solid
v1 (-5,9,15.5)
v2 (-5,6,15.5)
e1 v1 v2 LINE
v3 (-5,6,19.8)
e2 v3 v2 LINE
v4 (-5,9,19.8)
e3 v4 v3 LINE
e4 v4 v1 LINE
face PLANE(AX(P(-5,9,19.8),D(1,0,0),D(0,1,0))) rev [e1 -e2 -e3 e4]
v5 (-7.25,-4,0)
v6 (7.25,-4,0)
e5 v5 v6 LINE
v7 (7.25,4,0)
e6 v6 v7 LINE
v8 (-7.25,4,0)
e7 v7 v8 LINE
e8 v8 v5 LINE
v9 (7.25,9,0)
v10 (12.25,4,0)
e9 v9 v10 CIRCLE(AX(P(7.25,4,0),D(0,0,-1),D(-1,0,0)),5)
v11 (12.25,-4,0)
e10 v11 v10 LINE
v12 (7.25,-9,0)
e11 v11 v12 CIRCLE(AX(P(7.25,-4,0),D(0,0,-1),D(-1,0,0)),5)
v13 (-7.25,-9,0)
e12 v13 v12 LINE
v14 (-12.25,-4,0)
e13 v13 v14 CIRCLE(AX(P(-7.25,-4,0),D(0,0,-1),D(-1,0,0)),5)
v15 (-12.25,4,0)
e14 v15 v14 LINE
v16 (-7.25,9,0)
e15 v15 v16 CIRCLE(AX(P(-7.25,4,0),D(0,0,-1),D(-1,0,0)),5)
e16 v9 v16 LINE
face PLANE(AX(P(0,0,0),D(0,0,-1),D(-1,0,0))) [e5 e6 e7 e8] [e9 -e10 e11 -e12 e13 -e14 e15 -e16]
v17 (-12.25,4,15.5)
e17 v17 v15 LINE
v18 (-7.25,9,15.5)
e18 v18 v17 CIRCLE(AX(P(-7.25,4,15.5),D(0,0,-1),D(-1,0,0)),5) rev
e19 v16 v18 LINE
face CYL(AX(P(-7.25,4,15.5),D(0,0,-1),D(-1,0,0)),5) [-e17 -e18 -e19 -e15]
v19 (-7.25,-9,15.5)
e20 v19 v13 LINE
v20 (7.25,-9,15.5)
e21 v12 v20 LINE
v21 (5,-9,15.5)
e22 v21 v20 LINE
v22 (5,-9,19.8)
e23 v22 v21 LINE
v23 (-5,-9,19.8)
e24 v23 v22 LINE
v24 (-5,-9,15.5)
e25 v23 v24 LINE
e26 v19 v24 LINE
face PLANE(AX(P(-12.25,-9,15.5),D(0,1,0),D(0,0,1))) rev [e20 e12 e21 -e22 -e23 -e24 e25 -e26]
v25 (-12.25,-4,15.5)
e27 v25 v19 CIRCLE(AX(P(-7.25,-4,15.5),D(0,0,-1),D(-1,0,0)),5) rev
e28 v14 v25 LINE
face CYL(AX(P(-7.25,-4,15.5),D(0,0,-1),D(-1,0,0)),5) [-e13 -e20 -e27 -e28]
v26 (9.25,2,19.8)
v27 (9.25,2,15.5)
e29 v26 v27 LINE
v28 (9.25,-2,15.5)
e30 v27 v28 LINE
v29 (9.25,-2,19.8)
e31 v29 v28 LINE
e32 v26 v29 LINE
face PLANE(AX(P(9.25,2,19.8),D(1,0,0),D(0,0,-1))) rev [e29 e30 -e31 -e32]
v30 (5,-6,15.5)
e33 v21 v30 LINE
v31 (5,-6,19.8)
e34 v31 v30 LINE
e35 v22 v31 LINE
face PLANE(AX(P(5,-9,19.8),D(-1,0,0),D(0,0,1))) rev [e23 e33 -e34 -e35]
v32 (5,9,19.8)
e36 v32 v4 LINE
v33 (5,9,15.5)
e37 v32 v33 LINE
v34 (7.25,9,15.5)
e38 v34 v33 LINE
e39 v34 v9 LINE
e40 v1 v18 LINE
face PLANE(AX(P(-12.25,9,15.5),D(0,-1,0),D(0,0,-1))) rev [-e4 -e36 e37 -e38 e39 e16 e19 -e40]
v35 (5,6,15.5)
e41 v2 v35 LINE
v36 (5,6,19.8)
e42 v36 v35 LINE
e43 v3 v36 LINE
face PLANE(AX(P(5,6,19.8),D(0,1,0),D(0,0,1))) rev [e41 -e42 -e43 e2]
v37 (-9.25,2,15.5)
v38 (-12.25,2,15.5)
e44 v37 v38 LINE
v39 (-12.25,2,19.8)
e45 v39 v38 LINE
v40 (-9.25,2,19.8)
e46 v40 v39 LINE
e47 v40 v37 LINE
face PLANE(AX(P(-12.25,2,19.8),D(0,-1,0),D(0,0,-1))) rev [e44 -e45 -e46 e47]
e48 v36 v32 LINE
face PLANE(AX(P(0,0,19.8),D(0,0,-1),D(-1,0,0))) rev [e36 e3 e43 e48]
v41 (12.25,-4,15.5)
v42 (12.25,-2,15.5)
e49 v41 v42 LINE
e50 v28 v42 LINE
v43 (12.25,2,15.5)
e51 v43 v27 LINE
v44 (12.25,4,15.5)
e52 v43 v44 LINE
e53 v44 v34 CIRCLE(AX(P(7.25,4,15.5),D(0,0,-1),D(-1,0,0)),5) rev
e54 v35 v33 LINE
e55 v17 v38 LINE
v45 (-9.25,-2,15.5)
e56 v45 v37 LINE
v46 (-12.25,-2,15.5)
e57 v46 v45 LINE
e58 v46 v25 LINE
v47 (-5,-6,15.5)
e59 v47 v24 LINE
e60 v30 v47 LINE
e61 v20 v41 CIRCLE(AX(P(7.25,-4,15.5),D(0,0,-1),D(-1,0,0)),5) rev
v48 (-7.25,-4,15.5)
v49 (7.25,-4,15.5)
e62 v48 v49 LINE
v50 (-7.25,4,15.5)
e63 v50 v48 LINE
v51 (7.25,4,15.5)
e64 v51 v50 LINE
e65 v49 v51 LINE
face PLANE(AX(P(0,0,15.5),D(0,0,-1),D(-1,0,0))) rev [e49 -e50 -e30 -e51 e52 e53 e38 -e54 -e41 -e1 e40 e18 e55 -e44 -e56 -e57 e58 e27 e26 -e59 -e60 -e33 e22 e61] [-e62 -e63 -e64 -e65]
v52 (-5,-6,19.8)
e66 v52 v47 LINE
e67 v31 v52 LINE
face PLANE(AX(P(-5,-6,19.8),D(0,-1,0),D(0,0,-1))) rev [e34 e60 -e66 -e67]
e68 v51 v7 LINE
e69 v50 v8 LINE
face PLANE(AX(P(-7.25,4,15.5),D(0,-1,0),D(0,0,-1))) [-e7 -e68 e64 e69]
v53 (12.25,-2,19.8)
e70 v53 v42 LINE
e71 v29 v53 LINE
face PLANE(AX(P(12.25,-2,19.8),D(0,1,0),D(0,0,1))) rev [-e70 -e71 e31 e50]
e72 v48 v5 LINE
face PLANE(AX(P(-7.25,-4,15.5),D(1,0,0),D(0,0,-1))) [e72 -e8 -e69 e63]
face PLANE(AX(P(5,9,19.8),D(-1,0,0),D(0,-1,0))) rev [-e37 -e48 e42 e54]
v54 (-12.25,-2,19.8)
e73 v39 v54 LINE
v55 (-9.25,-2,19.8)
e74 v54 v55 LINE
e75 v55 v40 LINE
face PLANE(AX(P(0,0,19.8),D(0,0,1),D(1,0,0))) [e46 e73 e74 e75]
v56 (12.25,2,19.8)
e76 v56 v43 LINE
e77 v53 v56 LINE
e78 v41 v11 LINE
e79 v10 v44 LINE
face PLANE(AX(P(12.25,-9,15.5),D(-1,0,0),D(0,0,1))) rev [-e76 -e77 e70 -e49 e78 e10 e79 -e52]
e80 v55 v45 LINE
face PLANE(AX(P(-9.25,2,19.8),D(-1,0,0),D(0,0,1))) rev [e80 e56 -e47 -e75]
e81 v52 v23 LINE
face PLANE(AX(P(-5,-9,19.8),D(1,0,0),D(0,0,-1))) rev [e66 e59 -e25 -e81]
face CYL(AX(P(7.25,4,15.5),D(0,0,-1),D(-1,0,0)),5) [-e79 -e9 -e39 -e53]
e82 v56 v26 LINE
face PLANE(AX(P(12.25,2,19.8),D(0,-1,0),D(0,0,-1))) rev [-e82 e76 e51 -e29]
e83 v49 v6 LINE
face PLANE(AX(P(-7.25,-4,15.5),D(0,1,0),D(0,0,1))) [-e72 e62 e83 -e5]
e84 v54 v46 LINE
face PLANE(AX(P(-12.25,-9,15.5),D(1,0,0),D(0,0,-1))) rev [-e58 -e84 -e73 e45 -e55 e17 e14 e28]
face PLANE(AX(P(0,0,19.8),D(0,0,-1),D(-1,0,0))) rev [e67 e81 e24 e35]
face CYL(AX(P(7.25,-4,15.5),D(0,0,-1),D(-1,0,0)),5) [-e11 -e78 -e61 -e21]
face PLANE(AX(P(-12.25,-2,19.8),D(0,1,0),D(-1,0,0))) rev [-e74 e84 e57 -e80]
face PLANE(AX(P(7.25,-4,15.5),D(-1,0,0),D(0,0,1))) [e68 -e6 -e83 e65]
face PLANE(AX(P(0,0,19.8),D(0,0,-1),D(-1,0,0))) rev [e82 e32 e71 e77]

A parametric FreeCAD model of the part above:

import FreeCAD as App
import Part
import Sketcher

V = App.Vector


def edges_at(feature, points):
    """Names of the edges that pass closest to the given points."""
    edges = feature.Shape.Edges
    near = lambda p: min(range(len(edges)), key=lambda i: edges[i].distToShape(Part.Vertex(*p))[0])
    return sorted({f"Edge{near(p) + 1}" for p in points})


def add_polygon(sketch, points):
    """Adds a closed chain of lines whose ends are joined by coincident constraints."""
    first, n = sketch.GeometryCount, len(points)
    for a, b in zip(points, points[1:] + points[:1]):
        sketch.addGeometry(Part.LineSegment(App.Vector(*a, 0), App.Vector(*b, 0)), False)
    for i in range(n):
        sketch.addConstraint(Sketcher.Constraint("Coincident", first + i, 2, first + (i + 1) % n, 1))

doc = App.newDocument("Part")
body = doc.addObject("PartDesign::Body", "Body")

# Sketch on XY plane
sketch1 = doc.addObject("Sketcher::SketchObject", "Sketch")
body.addObject(sketch1)
sketch1.AttachmentSupport = (doc.XY_Plane, [""])
sketch1.MapMode = "FlatFace"
add_polygon(sketch1, [(-12, 9), (-12, -9), (12, -9), (12, 9)])  # lines 0-3
add_polygon(sketch1, [(7, -4), (-7, -4), (-7, 4), (7, 4)])  # lines 4-7
sketch1.addConstraint(Sketcher.Constraint("Vertical", 0))
sketch1.addConstraint(Sketcher.Constraint("Horizontal", 1))
sketch1.addConstraint(Sketcher.Constraint("Vertical", 2))
sketch1.addConstraint(Sketcher.Constraint("Horizontal", 3))
sketch1.addConstraint(Sketcher.Constraint("Horizontal", 4))
sketch1.addConstraint(Sketcher.Constraint("Vertical", 5))
sketch1.addConstraint(Sketcher.Constraint("Horizontal", 6))
sketch1.addConstraint(Sketcher.Constraint("Vertical", 7))
sketch1.addConstraint(Sketcher.Constraint("Symmetric", 0, 2, 2, 2, -1, 1))
sketch1.addConstraint(Sketcher.Constraint("Symmetric", 4, 2, 6, 2, -1, 1))
sketch1.addConstraint(Sketcher.Constraint("DistanceY", 0, 2, 0, 1, 18.0))
sketch1.addConstraint(Sketcher.Constraint("DistanceY", 5, 1, 5, 2, 8.0))
sketch1.addConstraint(Sketcher.Constraint("DistanceX", 1, 1, 1, 2, 24.5))
sketch1.addConstraint(Sketcher.Constraint("DistanceX", 4, 2, 4, 1, 14.5))
pad1 = doc.addObject("PartDesign::Pad", "Pad")
body.addObject(pad1)
pad1.Profile = sketch1
pad1.Length = 15.5
doc.recompute()

fillet = doc.addObject("PartDesign::Fillet", "Fillet")
body.addObject(fillet)
fillet.Base = (pad1, edges_at(pad1, [
    (-12.25, 9, 7.75),
    (12.25, 9, 7.75),
    (12.25, -9, 7.75),
    (-12.25, -9, 7.75),
]))
fillet.Radius = 5

# Sketch on XY plane
sketch2 = doc.addObject("Sketcher::SketchObject", "Sketch001")
body.addObject(sketch2)
sketch2.AttachmentSupport = (doc.XY_Plane, [""])
sketch2.MapMode = "FlatFace"
sketch2.AttachmentOffset = App.Placement(V(0, 0, 15.5), App.Rotation())
add_polygon(sketch2, [(-5, -6), (-5, -9), (5, -9), (5, -6)])  # lines 0-3
add_polygon(sketch2, [(-5, 9), (-5, 6), (5, 6), (5, 9)])  # lines 4-7
add_polygon(sketch2, [(-12.2, 2), (-12.2, -2), (-9.2, -2), (-9.2, 2)])  # lines 8-11
add_polygon(sketch2, [(9.2, 2), (9.2, -2), (12.2, -2), (12.2, 2)])  # lines 12-15
sketch2.addConstraint(Sketcher.Constraint("Vertical", 0))
sketch2.addConstraint(Sketcher.Constraint("Horizontal", 1))
sketch2.addConstraint(Sketcher.Constraint("Vertical", 2))
sketch2.addConstraint(Sketcher.Constraint("Horizontal", 3))
sketch2.addConstraint(Sketcher.Constraint("Vertical", 4))
sketch2.addConstraint(Sketcher.Constraint("Horizontal", 5))
sketch2.addConstraint(Sketcher.Constraint("Vertical", 6))
sketch2.addConstraint(Sketcher.Constraint("Horizontal", 7))
sketch2.addConstraint(Sketcher.Constraint("Vertical", 8))
sketch2.addConstraint(Sketcher.Constraint("Horizontal", 9))
sketch2.addConstraint(Sketcher.Constraint("Vertical", 10))
sketch2.addConstraint(Sketcher.Constraint("Horizontal", 11))
sketch2.addConstraint(Sketcher.Constraint("Vertical", 12))
sketch2.addConstraint(Sketcher.Constraint("Horizontal", 13))
sketch2.addConstraint(Sketcher.Constraint("Vertical", 14))
sketch2.addConstraint(Sketcher.Constraint("Horizontal", 15))
sketch2.addConstraint(Sketcher.Constraint("Symmetric", 2, 2, 4, 2, -1, 1))
sketch2.addConstraint(Sketcher.Constraint("Symmetric", 0, 2, 6, 2, -1, 1))
sketch2.addConstraint(Sketcher.Constraint("Symmetric", 10, 2, 12, 2, -1, 1))
sketch2.addConstraint(Sketcher.Constraint("Symmetric", 8, 2, 14, 2, -1, 1))
sketch2.addConstraint(Sketcher.Constraint("Horizontal", 9, 2, 12, 2))
sketch2.addConstraint(Sketcher.Constraint("Vertical", 3, 2, 4, 2))
sketch2.addConstraint(Sketcher.Constraint("Equal", 15, 0))
sketch2.addConstraint(Sketcher.Constraint("DistanceX", 1, 1, 1, 2, 10.0))
sketch2.addConstraint(Sketcher.Constraint("DistanceX", 9, 1, 9, 2, 3.0))
sketch2.addConstraint(Sketcher.Constraint("DistanceY", 8, 2, 8, 1, 4.0))
sketch2.addConstraint(Sketcher.Constraint("DistanceY", 0, 2, -1, 1, 9.0))
sketch2.addConstraint(Sketcher.Constraint("DistanceX", 8, 2, -1, 1, 12.25))
pad2 = doc.addObject("PartDesign::Pad", "Pad001")
body.addObject(pad2)
pad2.Profile = sketch2
pad2.Length = 4.3

doc.recompute()
